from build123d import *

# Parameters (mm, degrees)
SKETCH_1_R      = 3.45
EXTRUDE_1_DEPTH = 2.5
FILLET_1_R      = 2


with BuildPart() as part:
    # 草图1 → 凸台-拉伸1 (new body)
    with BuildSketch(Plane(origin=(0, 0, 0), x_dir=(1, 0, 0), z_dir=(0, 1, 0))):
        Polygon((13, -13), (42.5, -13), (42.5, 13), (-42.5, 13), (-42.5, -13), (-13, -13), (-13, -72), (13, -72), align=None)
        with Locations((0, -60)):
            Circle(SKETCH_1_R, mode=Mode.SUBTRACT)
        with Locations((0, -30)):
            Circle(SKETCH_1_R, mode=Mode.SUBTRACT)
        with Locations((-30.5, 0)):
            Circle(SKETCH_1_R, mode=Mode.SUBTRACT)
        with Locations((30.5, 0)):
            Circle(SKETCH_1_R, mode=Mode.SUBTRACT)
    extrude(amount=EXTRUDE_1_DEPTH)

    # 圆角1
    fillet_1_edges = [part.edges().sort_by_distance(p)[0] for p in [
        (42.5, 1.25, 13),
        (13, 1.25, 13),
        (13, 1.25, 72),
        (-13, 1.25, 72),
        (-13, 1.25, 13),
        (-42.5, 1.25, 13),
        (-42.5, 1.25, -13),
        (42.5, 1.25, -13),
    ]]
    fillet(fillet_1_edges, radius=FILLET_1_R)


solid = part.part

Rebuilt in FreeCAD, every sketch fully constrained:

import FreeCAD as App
import Part
import Sketcher

V = App.Vector
Q = App.Units.Quantity


def edges_at(feature, points):
    """Names of the edges that pass closest to the given points."""
    edges = feature.Shape.Edges
    near = lambda p: min(range(len(edges)), key=lambda i: edges[i].distToShape(Part.Vertex(*p))[0])
    return sorted({f"Edge{near(p) + 1}" for p in points})


def add_polygon(sketch, points):
    """Adds a closed chain of lines whose ends are joined by coincident constraints."""
    first, n = sketch.GeometryCount, len(points)
    for a, b in zip(points, points[1:] + points[:1]):
        sketch.addGeometry(Part.LineSegment(App.Vector(*a, 0), App.Vector(*b, 0)), False)
    for i in range(n):
        sketch.addConstraint(Sketcher.Constraint("Coincident", first + i, 2, first + (i + 1) % n, 1))

doc = App.newDocument("Part")
params = doc.addObject("Spreadsheet::Sheet", "Params")
for row, (alias, value) in enumerate([
    ("sketch1_diameter", "6.9 mm"),
    ("sketch1_width", "85 mm"),
    ("sketch1_width2", "26 mm"),
    ("sketch1_height", "59 mm"),
    ("pad1_length", "2.5 mm"),
    ("fillet_radius", "2 mm"),
], start=1):
    params.set(f"A{row}", alias)
    params.set(f"B{row}", "=" + value)
    params.setAlias(f"B{row}", alias)

body = doc.addObject("PartDesign::Body", "Body")

# Sketch on XZ plane
sketch1 = body.newObject("Sketcher::SketchObject", "Sketch")
sketch1.AttachmentSupport = (doc.getObject("XZ_Plane"), [""])
sketch1.MapMode = "FlatFace"
add_polygon(sketch1, [(13, 13), (42.5, 13), (42.5, -13), (-42.5, -13), (-42.5, 13), (-13, 13), (-13, 72), (13, 72)])  # lines 0-7
sketch1.addGeometry(Part.Circle(V(0, 60, 0), V(0, 0, 1), 3.45), False)  # 8
sketch1.addGeometry(Part.Circle(V(-30.5, 0, 0), V(0, 0, 1), 3.45), False)  # 9
sketch1.addGeometry(Part.Circle(V(0, 30, 0), V(0, 0, 1), 3.45), False)  # 10
sketch1.addGeometry(Part.Circle(V(30.5, 0, 0), V(0, 0, 1), 3.45), False)  # 11
sketch1.addConstraint(Sketcher.Constraint("Horizontal", 0))
sketch1.addConstraint(Sketcher.Constraint("Vertical", 1))
sketch1.addConstraint(Sketcher.Constraint("Horizontal", 2))
sketch1.addConstraint(Sketcher.Constraint("Vertical", 3))
sketch1.addConstraint(Sketcher.Constraint("Horizontal", 4))
sketch1.addConstraint(Sketcher.Constraint("Vertical", 5))
sketch1.addConstraint(Sketcher.Constraint("Horizontal", 6))
sketch1.addConstraint(Sketcher.Constraint("Vertical", 7))
sketch1.addConstraint(Sketcher.Constraint("Equal", 8, 9))
sketch1.addConstraint(Sketcher.Constraint("Equal", 9, 10))
sketch1.addConstraint(Sketcher.Constraint("Equal", 10, 11))
sketch1.addConstraint(Sketcher.Constraint("Symmetric", 9, 3, 11, 3, -1, 1))
sketch1.addConstraint(Sketcher.Constraint("Symmetric", 0, 2, 2, 2, -1, 1))
sketch1.addConstraint(Sketcher.Constraint("Symmetric", 4, 2, 7, 2, -2))
sketch1.addConstraint(Sketcher.Constraint("PointOnObject", 8, 3, -2))
sketch1.addConstraint(Sketcher.Constraint("PointOnObject", 9, 3, -1))
sketch1.addConstraint(Sketcher.Constraint("PointOnObject", 10, 3, -2))
sketch1.addConstraint(Sketcher.Constraint("Equal", 6, 1))
sketch1.addConstraint(Sketcher.Constraint("Diameter", 8, Q("6.9 mm")))
sketch1.addConstraint(Sketcher.Constraint("DistanceX", 2, 2, 2, 1, Q("85 mm")))
sketch1.addConstraint(Sketcher.Constraint("DistanceX", 6, 1, 6, 2, Q("26 mm")))
sketch1.addConstraint(Sketcher.Constraint("DistanceY", 5, 1, 5, 2, Q("59 mm")))
sketch1.addConstraint(Sketcher.Constraint("DistanceY", -1, 1, 8, 3, Q("60 mm")))
sketch1.addConstraint(Sketcher.Constraint("DistanceY", -1, 1, 10, 3, Q("30 mm")))
sketch1.addConstraint(Sketcher.Constraint("DistanceX", 9, 3, 11, 3, Q("61 mm")))
sketch1.setExpression("Constraints[26]", "Params.sketch1_diameter")
sketch1.setExpression("Constraints[27]", "Params.sketch1_width")
sketch1.setExpression("Constraints[28]", "Params.sketch1_width2")
sketch1.setExpression("Constraints[29]", "Params.sketch1_height")
pad1 = body.newObject("PartDesign::Pad", "Pad")
pad1.Profile = sketch1
pad1.setExpression("Length", "Params.pad1_length")
pad1.Reversed = True
doc.recompute()

fillet = body.newObject("PartDesign::Fillet", "Fillet")
fillet.Base = (pad1, edges_at(pad1, [
    (42.5, 1.25, 13),
    (13, 1.25, 13),
    (13, 1.25, 72),
    (-13, 1.25, 72),
    (-13, 1.25, 13),
    (-42.5, 1.25, 13),
    (-42.5, 1.25, -13),
    (42.5, 1.25, -13),
]))
fillet.setExpression("Radius", "Params.fillet_radius")

doc.recompute()
